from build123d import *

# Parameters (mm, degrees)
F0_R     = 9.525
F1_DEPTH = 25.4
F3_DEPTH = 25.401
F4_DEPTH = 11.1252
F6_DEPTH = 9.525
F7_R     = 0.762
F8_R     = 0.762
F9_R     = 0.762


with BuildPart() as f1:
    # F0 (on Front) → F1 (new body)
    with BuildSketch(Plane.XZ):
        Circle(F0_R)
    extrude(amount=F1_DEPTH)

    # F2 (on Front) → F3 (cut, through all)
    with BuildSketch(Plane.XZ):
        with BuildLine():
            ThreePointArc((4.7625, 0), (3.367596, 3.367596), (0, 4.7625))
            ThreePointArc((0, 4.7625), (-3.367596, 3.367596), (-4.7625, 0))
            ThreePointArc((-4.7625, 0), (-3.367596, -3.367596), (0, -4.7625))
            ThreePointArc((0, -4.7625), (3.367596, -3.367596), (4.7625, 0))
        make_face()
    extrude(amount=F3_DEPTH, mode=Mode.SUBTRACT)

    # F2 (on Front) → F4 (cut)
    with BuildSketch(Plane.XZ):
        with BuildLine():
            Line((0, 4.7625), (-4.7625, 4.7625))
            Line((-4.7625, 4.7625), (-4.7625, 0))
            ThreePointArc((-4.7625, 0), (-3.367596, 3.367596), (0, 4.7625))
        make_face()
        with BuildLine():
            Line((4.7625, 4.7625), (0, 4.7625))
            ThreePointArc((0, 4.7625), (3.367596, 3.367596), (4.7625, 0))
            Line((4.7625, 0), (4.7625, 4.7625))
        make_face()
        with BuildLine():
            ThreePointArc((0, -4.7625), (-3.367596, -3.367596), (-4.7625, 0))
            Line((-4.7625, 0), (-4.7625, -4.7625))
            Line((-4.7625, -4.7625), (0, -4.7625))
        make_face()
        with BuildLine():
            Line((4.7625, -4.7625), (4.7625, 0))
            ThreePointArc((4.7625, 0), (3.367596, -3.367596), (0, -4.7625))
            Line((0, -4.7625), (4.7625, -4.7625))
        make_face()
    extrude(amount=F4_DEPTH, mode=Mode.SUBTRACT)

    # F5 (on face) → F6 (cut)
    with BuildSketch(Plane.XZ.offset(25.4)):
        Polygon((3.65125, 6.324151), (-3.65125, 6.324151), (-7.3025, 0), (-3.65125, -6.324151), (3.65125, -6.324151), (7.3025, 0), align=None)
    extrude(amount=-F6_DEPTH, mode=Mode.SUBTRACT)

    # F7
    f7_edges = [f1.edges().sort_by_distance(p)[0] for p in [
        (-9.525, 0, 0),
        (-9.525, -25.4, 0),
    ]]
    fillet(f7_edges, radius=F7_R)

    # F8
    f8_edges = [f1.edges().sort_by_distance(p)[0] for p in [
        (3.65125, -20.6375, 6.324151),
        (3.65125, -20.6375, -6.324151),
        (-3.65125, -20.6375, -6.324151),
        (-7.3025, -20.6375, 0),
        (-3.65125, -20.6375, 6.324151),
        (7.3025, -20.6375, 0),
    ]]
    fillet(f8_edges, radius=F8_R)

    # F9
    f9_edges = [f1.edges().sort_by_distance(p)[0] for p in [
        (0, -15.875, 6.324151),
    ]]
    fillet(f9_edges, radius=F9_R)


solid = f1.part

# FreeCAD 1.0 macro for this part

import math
import FreeCAD as App
import Part
import Sketcher
from FreeCAD import Vector
Q = App.Units.Quantity


def edges_at(feature, points):
    """Names of the edges that pass closest to the given points."""
    edges = feature.Shape.Edges
    near = lambda p: min(range(len(edges)), key=lambda i: edges[i].distToShape(Part.Vertex(*p))[0])
    return sorted({f"Edge{near(p) + 1}" for p in points})

doc = App.newDocument("Part")
body = doc.addObject("PartDesign::Body", "Body")

# Sketch on XZ plane
sketch1 = body.newObject("Sketcher::SketchObject", "Sketch")
sketch1.AttachmentSupport = (doc.getObject("XZ_Plane"), [""])
sketch1.MapMode = "FlatFace"
sketch1.addGeometry(Part.Circle(Vector(0, 0, 0), Vector(0, 0, 1), 10), False)
sketch1.addConstraint([
    Sketcher.Constraint("Coincident", 0, 3, -1, 1),
    Sketcher.Constraint("Diameter", 0, Q("0.75 in")),
])
pad1 = body.newObject("PartDesign::Pad", "Pad")
pad1.Profile = sketch1
pad1.Length = Q("1 in")

# Sketch on XZ plane
sketch2 = body.newObject("Sketcher::SketchObject", "Sketch001")
sketch2.AttachmentSupport = (doc.getObject("XZ_Plane"), [""])
sketch2.MapMode = "FlatFace"
sketch2.addGeometry([
    Part.ArcOfCircle(Part.Circle(Vector(0, 0, 0), Vector(0, 0, 1), 4.8), math.radians(0), math.radians(90)),
    Part.ArcOfCircle(Part.Circle(Vector(0, 0, 0), Vector(0, 0, 1), 4.8), math.radians(90), math.radians(180)),
    Part.ArcOfCircle(Part.Circle(Vector(0, 0, 0), Vector(0, 0, 1), 4.8), math.radians(-180), math.radians(-90)),
    Part.ArcOfCircle(Part.Circle(Vector(0, 0, 0), Vector(0, 0, 1), 4.8), math.radians(-90), math.radians(0)),
], False)
sketch2.addConstraint([
    Sketcher.Constraint("Tangent", 0, 2, 1, 1),
    Sketcher.Constraint("Tangent", 1, 2, 2, 1),
    Sketcher.Constraint("Tangent", 2, 2, 3, 1),
    Sketcher.Constraint("Tangent", 3, 2, 0, 1),
    Sketcher.Constraint("Coincident", 0, 3, -1, 1),
    Sketcher.Constraint("Equal", 0, 1),
    Sketcher.Constraint("PointOnObject", 0, 2, -2),
    Sketcher.Constraint("PointOnObject", 1, 2, -1),
    Sketcher.Constraint("PointOnObject", 2, 2, -2),
    Sketcher.Constraint("PointOnObject", 3, 2, -1),
    Sketcher.Constraint("Radius", 0, Q("0.1875 in")),
])
pocket1 = body.newObject("PartDesign::Pocket", "Pocket")
pocket1.Profile = sketch2
pocket1.Type = "ThroughAll"
pocket1.Reversed = True

# Sketch on XZ plane
sketch3 = body.newObject("Sketcher::SketchObject", "Sketch002")
sketch3.AttachmentSupport = (doc.getObject("XZ_Plane"), [""])
sketch3.MapMode = "FlatFace"
sketch3.addGeometry([
    Part.LineSegment(Vector(0, 4.8, 0), Vector(-4.8, 4.8, 0)),  # 0
    Part.LineSegment(Vector(-4.8, 4.8, 0), Vector(-4.8, 0, 0)),  # 1
    Part.ArcOfCircle(Part.Circle(Vector(0, 0, 0), Vector(0, 0, 1), 4.8), math.radians(90), math.radians(180)),  # 2
    Part.LineSegment(Vector(4.8, 4.8, 0), Vector(0, 4.8, 0)),  # 3
    Part.ArcOfCircle(Part.Circle(Vector(0, 0, 0), Vector(0, 0, 1), 4.8), math.radians(0), math.radians(90)),  # 4
    Part.LineSegment(Vector(4.8, 0, 0), Vector(4.8, 4.8, 0)),  # 5
    Part.ArcOfCircle(Part.Circle(Vector(0, 0, 0), Vector(0, 0, 1), 4.8), math.radians(-180), math.radians(-90)),  # 6
    Part.LineSegment(Vector(-4.8, 0, 0), Vector(-4.8, -4.8, 0)),  # 7
    Part.LineSegment(Vector(-4.8, -4.8, 0), Vector(0, -4.8, 0)),  # 8
    Part.LineSegment(Vector(4.8, -4.8, 0), Vector(4.8, 0, 0)),  # 9
    Part.ArcOfCircle(Part.Circle(Vector(0, 0, 0), Vector(0, 0, 1), 4.8), math.radians(-90), math.radians(0)),  # 10
    Part.LineSegment(Vector(0, -4.8, 0), Vector(4.8, -4.8, 0)),  # 11
], False)
sketch3.addConstraint([
    Sketcher.Constraint("Coincident", 0, 2, 1, 1),
    Sketcher.Constraint("Tangent", 1, 2, 2, 2),
    Sketcher.Constraint("Tangent", 2, 1, 0, 1),
    Sketcher.Constraint("Tangent", 3, 2, 4, 2),
    Sketcher.Constraint("Tangent", 4, 1, 5, 1),
    Sketcher.Constraint("Coincident", 5, 2, 3, 1),
    Sketcher.Constraint("Tangent", 6, 1, 7, 1),
    Sketcher.Constraint("Coincident", 7, 2, 8, 1),
    Sketcher.Constraint("Tangent", 8, 2, 6, 2),
    Sketcher.Constraint("Tangent", 9, 2, 10, 2),
    Sketcher.Constraint("Tangent", 10, 1, 11, 1),
    Sketcher.Constraint("Coincident", 11, 2, 9, 1),
    Sketcher.Constraint("Horizontal", 0),
    Sketcher.Constraint("Vertical", 1),
    Sketcher.Constraint("Horizontal", 3),
    Sketcher.Constraint("Vertical", 5),
    Sketcher.Constraint("Vertical", 7),
    Sketcher.Constraint("Horizontal", 8),
    Sketcher.Constraint("Vertical", 9),
    Sketcher.Constraint("Horizontal", 11),
    Sketcher.Constraint("Coincident", 2, 3, -1, 1),
    Sketcher.Constraint("Coincident", 4, 3, -1, 1),
    Sketcher.Constraint("Coincident", 6, 3, -1, 1),
    Sketcher.Constraint("Coincident", 10, 3, -1, 1),
    Sketcher.Constraint("Equal", 2, 4),
    Sketcher.Constraint("Equal", 4, 6),
    Sketcher.Constraint("Equal", 6, 10),
    Sketcher.Constraint("Radius", 2, Q("0.1875 in")),
])
pocket2 = body.newObject("PartDesign::Pocket", "Pocket001")
pocket2.Profile = sketch3
pocket2.Length = Q("0.438 in")
pocket2.Reversed = True

# Sketch on XZ plane
sketch4 = body.newObject("Sketcher::SketchObject", "Sketch003")
sketch4.AttachmentSupport = (doc.getObject("XZ_Plane"), [""])
sketch4.MapMode = "FlatFace"
sketch4.AttachmentOffset = App.Placement(Vector(0, 0, 1 * 25.4), App.Rotation())
sketch4.addGeometry([
    Part.LineSegment(Vector(4, 6, 0), Vector(-4, 6, 0)),  # 0
    Part.LineSegment(Vector(-4, 6, 0), Vector(-7, 0, 0)),  # 1
    Part.LineSegment(Vector(-7, 0, 0), Vector(-4, -6, 0)),  # 2
    Part.LineSegment(Vector(-4, -6, 0), Vector(4, -6, 0)),  # 3
    Part.LineSegment(Vector(4, -6, 0), Vector(7, 0, 0)),  # 4
    Part.LineSegment(Vector(7, 0, 0), Vector(4, 6, 0)),  # 5
], False)
sketch4.addConstraint([
    Sketcher.Constraint("Coincident", 0, 2, 1, 1),
    Sketcher.Constraint("Coincident", 1, 2, 2, 1),
    Sketcher.Constraint("Coincident", 2, 2, 3, 1),
    Sketcher.Constraint("Coincident", 3, 2, 4, 1),
    Sketcher.Constraint("Coincident", 4, 2, 5, 1),
    Sketcher.Constraint("Coincident", 5, 2, 0, 1),
    Sketcher.Constraint("Horizontal", 0),
    Sketcher.Constraint("Horizontal", 3),
    Sketcher.Constraint("Symmetric", 0, 2, 3, 2, -1, 1),
    Sketcher.Constraint("Symmetric", 1, 2, 4, 2, -1, 1),
    Sketcher.Constraint("PointOnObject", 1, 2, -1),
    Sketcher.Constraint("Parallel", 2, 5),
    Sketcher.Constraint("Vertical", 0, 2, 2, 2),
    Sketcher.Constraint("Angle", 1, Q("-119.999998 deg")),
    Sketcher.Constraint("DistanceX", 0, 2, 0, 1, Q("0.2875 in")),
    Sketcher.Constraint("DistanceX", 1, 2, 4, 2, Q("0.575 in")),
])
pocket3 = body.newObject("PartDesign::Pocket", "Pocket002")
pocket3.Profile = sketch4
pocket3.Length = Q("0.375 in")
doc.recompute()

fillet = body.newObject("PartDesign::Fillet", "Fillet")
fillet.Base = (pocket3, edges_at(pocket3, [(-9.525, 0, 0), (-9.525, -25.4, 0)]))
fillet.Radius = Q("0.03 in")
doc.recompute()

fillet2 = body.newObject("PartDesign::Fillet", "Fillet001")
fillet2.Base = (fillet, edges_at(fillet, [
    (3.651, -20.637, 6.324),
    (3.651, -20.637, -6.324),
    (-3.651, -20.637, -6.324),
    (-7.303, -20.637, 0),
    (-3.651, -20.637, 6.324),
    (7.303, -20.637, 0),
]))
fillet2.Radius = Q("0.03 in")
doc.recompute()

fillet3 = body.newObject("PartDesign::Fillet", "Fillet002")
fillet3.Base = (fillet2, edges_at(fillet2, [(0, -15.875, 6.324)]))
fillet3.Radius = Q("0.03 in")

doc.recompute()
